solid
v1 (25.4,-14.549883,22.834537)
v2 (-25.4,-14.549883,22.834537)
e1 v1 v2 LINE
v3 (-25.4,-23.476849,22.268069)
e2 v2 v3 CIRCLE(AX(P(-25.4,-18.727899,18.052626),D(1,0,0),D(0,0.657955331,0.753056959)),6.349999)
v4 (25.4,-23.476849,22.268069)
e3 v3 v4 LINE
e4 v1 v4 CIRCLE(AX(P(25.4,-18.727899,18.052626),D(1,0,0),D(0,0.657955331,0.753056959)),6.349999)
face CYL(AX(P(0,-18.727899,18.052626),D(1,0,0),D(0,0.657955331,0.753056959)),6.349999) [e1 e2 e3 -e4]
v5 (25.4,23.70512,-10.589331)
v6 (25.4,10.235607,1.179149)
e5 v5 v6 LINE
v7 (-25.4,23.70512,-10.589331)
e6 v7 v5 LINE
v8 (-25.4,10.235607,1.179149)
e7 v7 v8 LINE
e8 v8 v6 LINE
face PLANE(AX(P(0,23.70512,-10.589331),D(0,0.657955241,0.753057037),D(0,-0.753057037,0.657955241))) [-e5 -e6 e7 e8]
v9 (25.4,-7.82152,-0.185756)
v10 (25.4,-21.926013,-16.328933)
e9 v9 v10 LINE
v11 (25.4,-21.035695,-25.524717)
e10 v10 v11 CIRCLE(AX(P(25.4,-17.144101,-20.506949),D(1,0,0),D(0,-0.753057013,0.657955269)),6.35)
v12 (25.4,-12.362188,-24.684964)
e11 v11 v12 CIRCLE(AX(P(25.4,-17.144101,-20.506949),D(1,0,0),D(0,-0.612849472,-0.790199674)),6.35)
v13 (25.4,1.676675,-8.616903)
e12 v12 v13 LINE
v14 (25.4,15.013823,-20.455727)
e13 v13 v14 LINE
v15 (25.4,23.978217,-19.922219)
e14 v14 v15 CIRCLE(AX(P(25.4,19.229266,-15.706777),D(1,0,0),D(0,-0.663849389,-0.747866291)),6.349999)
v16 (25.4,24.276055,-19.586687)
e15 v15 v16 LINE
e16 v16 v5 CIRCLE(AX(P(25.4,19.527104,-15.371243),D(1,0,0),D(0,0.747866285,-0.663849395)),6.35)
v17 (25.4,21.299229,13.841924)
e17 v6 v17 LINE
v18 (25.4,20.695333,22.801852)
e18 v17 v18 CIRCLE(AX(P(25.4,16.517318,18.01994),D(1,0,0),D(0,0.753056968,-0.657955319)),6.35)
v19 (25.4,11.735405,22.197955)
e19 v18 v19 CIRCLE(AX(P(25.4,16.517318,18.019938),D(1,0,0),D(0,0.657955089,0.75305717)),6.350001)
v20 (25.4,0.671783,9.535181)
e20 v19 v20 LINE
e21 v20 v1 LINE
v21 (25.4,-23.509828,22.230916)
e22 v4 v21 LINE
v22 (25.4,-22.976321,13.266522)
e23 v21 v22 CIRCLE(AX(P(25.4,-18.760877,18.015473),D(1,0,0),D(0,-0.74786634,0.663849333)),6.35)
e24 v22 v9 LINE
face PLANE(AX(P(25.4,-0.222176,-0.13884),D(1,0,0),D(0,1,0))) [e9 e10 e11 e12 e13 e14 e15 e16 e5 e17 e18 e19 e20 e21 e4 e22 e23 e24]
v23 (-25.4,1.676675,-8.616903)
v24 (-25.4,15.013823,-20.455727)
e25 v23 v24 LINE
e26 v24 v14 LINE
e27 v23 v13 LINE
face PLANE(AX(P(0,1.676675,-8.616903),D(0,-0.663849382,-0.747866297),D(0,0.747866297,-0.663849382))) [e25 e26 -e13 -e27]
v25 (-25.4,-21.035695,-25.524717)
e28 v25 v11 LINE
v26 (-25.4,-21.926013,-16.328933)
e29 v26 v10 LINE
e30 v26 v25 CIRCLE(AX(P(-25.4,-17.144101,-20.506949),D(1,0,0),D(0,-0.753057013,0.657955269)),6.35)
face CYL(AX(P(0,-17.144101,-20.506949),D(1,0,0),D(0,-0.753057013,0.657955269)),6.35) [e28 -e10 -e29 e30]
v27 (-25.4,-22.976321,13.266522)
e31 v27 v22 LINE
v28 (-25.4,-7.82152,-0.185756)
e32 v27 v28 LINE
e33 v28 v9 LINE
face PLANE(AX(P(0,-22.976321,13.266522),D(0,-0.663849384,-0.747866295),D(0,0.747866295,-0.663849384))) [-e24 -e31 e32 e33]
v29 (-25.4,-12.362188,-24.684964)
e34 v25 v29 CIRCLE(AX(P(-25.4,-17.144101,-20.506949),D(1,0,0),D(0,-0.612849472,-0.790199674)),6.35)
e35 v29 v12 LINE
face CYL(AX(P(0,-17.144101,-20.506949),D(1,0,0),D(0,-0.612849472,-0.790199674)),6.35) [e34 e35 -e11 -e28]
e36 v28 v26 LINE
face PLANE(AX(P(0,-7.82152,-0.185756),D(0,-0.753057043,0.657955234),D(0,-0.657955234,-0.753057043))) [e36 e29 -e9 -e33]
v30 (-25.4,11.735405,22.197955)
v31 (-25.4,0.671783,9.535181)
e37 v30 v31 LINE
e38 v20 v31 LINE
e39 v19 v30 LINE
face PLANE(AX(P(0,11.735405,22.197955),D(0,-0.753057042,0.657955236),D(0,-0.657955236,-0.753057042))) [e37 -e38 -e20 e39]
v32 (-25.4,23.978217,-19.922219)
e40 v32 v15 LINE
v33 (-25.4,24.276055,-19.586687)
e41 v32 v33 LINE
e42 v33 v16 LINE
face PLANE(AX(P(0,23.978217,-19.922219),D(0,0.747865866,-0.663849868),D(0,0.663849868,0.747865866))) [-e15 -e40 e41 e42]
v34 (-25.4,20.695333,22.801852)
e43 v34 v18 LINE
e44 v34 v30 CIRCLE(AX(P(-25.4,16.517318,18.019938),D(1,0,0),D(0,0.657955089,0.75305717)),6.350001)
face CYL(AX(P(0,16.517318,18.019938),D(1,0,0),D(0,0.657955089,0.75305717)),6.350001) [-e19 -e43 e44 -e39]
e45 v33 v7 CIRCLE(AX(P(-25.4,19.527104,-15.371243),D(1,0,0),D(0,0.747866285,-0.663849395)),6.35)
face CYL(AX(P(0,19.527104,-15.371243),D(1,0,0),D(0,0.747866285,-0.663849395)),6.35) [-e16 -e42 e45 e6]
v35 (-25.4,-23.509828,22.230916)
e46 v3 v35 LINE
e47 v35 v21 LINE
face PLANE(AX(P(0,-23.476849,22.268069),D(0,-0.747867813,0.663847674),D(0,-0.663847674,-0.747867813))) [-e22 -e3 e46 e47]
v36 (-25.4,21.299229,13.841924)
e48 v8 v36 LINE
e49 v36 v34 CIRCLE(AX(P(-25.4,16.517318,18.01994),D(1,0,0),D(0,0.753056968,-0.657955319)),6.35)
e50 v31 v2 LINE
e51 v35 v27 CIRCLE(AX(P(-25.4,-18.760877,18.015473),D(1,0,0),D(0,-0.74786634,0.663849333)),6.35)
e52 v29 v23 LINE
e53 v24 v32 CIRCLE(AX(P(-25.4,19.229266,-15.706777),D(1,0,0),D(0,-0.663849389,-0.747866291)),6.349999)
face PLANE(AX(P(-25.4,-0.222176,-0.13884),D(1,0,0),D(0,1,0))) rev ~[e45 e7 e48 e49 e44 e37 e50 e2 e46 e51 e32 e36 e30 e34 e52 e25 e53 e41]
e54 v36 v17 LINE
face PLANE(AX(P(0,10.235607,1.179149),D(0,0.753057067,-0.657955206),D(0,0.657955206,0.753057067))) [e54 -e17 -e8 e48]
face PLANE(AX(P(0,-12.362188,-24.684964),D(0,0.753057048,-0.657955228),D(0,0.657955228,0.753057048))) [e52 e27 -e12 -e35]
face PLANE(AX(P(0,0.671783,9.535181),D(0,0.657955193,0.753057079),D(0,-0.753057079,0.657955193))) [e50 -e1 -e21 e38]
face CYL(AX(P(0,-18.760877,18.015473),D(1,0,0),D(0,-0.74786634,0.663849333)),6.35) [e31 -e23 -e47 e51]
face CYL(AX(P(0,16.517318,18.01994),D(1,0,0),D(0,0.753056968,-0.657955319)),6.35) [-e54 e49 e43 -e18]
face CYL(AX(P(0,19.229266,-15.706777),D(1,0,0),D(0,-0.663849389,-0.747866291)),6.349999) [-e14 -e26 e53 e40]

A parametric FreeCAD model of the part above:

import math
import FreeCAD as App
import Part
import Sketcher

V = App.Vector
Q = App.Units.Quantity

doc = App.newDocument("Part")
body = doc.addObject("PartDesign::Body", "Body")

sketch1 = body.newObject("Sketcher::SketchObject", "Sketch")
sketch1.AttachmentSupport = (doc.getObject("YZ_Plane"), [""])
sketch1.MapMode = "FlatFace"
sketch1.addGeometry([
    Part.ArcOfCircle(Part.Circle(V(-18.728, 18.053, 0), V(0, 0, 1), 6.35), math.radians(49), math.radians(138)),
    Part.LineSegment(V(-23.477, 22.268, 0), V(-23.51, 22.231, 0)),
    Part.ArcOfCircle(Part.Circle(V(-18.761, 18.015, 0), V(0, 0, 1), 6.35), math.radians(138), math.radians(228)),
    Part.LineSegment(V(-22.976, 13.267, 0), V(-7.822, -0.186, 0)),
    Part.LineSegment(V(-7.822, -0.186, 0), V(-21.926, -16.329, 0)),
    Part.ArcOfCircle(Part.Circle(V(-17.144, -20.507, 0), V(0, 0, 1), 6.35), math.radians(139), math.radians(232)),
    Part.ArcOfCircle(Part.Circle(V(-17.144, -20.507, 0), V(0, 0, 1), 6.35), math.radians(-128), math.radians(-41)),
    Part.LineSegment(V(-12.362, -24.685, 0), V(1.677, -8.617, 0)),
    Part.LineSegment(V(1.677, -8.617, 0), V(15.014, -20.456, 0)),
    Part.ArcOfCircle(Part.Circle(V(19.229, -15.707, 0), V(0, 0, 1), 6.35), math.radians(-132), math.radians(-42)),
    Part.LineSegment(V(23.978, -19.922, 0), V(24.276, -19.587, 0)),
    Part.ArcOfCircle(Part.Circle(V(19.527, -15.371, 0), V(0, 0, 1), 6.35), math.radians(-42), math.radians(49)),
    Part.LineSegment(V(23.705, -10.589, 0), V(10.236, 1.179, 0)),
    Part.LineSegment(V(10.236, 1.179, 0), V(21.299, 13.842, 0)),
    Part.ArcOfCircle(Part.Circle(V(16.517, 18.02, 0), V(0, 0, 1), 6.35), math.radians(-41), math.radians(49)),
    Part.ArcOfCircle(Part.Circle(V(16.517, 18.02, 0), V(0, 0, 1), 6.35), math.radians(49), math.radians(139)),
    Part.LineSegment(V(11.735, 22.198, 0), V(0.672, 9.535, 0)),
    Part.LineSegment(V(0.672, 9.535, 0), V(-14.55, 22.835, 0)),
], False)
sketch1.addConstraint([
    Sketcher.Constraint("Coincident", 0, 2, 1, 1),
    Sketcher.Constraint("Coincident", 1, 2, 2, 1),
    Sketcher.Constraint("Tangent", 2, 2, 3, 1),
    Sketcher.Constraint("Coincident", 3, 2, 4, 1),
    Sketcher.Constraint("Tangent", 4, 2, 5, 1),
    Sketcher.Constraint("Tangent", 5, 2, 6, 1),
    Sketcher.Constraint("Tangent", 6, 2, 7, 1),
    Sketcher.Constraint("Coincident", 7, 2, 8, 1),
    Sketcher.Constraint("Tangent", 8, 2, 9, 1),
    Sketcher.Constraint("Tangent", 9, 2, 10, 1),
    Sketcher.Constraint("Tangent", 10, 2, 11, 1),
    Sketcher.Constraint("Tangent", 11, 2, 12, 1),
    Sketcher.Constraint("Coincident", 12, 2, 13, 1),
    Sketcher.Constraint("Tangent", 13, 2, 14, 1),
    Sketcher.Constraint("Tangent", 14, 2, 15, 1),
    Sketcher.Constraint("Tangent", 15, 2, 16, 1),
    Sketcher.Constraint("Coincident", 16, 2, 17, 1),
    Sketcher.Constraint("Tangent", 17, 2, 0, 1),
    Sketcher.Constraint("Equal", 0, 2),
    Sketcher.Constraint("Equal", 2, 5),
    Sketcher.Constraint("Equal", 5, 6),
    Sketcher.Constraint("Equal", 6, 9),
    Sketcher.Constraint("Equal", 9, 11),
    Sketcher.Constraint("Equal", 11, 14),
    Sketcher.Constraint("Equal", 14, 15),
    Sketcher.Constraint("Parallel", 4, 7),
    Sketcher.Constraint("Parallel", 3, 8),
    Sketcher.Constraint("Perpendicular", 8, 10),
    Sketcher.Constraint("Perpendicular", 7, 12),
    Sketcher.Constraint("Perpendicular", 12, 13),
    Sketcher.Constraint("Parallel", 13, 16),
    Sketcher.Constraint("Perpendicular", 16, 17),
    Sketcher.Constraint("Equal", 13, 16),
    Sketcher.Constraint("Radius", 0, Q("0.25 in")),
    Sketcher.Constraint("Distance", 8, 17.833599),
    Sketcher.Constraint("DistanceX", 0, 3, -1, 1, 18.727899),
    Sketcher.Constraint("DistanceX", 5, 3, -1, 1, 17.144101),
    Sketcher.Constraint("DistanceX", 2, 2, 3, 2, 15.154801),
    Sketcher.Constraint("DistanceX", 12, 2, 15, 2, 1.499798),
    Sketcher.Constraint("Distance", 1, 0.049679),
    Sketcher.Constraint("Distance", 3, 20.264051),
    Sketcher.Constraint("Distance", 4, 21.436858),
    Sketcher.Constraint("Distance", 7, 21.33711),
    Sketcher.Constraint("Distance", 13, 16.81516),
    Sketcher.Constraint("DistanceY", 5, 3, -1, 1, 20.506949),
    Sketcher.Constraint("DistanceY", -1, 1, 14, 3, 18.01994),
    Sketcher.Constraint("DistanceX", 0, 2, -1, 1, 23.476849),
    Sketcher.Constraint("DistanceY", -1, 1, 0, 2, 22.268069),
    Sketcher.Constraint("DistanceY", 5, 2, 5, 3, 5.017768),
    Sketcher.Constraint("DistanceY", 14, 3, 14, 2, 4.781912),
])
pad1 = body.newObject("PartDesign::Pad", "Pad")
pad1.Profile = sketch1
pad1.Type = "TwoLengths"
pad1.Length = Q("1 in")
pad1.Length2 = Q("1 in")

doc.recompute()
